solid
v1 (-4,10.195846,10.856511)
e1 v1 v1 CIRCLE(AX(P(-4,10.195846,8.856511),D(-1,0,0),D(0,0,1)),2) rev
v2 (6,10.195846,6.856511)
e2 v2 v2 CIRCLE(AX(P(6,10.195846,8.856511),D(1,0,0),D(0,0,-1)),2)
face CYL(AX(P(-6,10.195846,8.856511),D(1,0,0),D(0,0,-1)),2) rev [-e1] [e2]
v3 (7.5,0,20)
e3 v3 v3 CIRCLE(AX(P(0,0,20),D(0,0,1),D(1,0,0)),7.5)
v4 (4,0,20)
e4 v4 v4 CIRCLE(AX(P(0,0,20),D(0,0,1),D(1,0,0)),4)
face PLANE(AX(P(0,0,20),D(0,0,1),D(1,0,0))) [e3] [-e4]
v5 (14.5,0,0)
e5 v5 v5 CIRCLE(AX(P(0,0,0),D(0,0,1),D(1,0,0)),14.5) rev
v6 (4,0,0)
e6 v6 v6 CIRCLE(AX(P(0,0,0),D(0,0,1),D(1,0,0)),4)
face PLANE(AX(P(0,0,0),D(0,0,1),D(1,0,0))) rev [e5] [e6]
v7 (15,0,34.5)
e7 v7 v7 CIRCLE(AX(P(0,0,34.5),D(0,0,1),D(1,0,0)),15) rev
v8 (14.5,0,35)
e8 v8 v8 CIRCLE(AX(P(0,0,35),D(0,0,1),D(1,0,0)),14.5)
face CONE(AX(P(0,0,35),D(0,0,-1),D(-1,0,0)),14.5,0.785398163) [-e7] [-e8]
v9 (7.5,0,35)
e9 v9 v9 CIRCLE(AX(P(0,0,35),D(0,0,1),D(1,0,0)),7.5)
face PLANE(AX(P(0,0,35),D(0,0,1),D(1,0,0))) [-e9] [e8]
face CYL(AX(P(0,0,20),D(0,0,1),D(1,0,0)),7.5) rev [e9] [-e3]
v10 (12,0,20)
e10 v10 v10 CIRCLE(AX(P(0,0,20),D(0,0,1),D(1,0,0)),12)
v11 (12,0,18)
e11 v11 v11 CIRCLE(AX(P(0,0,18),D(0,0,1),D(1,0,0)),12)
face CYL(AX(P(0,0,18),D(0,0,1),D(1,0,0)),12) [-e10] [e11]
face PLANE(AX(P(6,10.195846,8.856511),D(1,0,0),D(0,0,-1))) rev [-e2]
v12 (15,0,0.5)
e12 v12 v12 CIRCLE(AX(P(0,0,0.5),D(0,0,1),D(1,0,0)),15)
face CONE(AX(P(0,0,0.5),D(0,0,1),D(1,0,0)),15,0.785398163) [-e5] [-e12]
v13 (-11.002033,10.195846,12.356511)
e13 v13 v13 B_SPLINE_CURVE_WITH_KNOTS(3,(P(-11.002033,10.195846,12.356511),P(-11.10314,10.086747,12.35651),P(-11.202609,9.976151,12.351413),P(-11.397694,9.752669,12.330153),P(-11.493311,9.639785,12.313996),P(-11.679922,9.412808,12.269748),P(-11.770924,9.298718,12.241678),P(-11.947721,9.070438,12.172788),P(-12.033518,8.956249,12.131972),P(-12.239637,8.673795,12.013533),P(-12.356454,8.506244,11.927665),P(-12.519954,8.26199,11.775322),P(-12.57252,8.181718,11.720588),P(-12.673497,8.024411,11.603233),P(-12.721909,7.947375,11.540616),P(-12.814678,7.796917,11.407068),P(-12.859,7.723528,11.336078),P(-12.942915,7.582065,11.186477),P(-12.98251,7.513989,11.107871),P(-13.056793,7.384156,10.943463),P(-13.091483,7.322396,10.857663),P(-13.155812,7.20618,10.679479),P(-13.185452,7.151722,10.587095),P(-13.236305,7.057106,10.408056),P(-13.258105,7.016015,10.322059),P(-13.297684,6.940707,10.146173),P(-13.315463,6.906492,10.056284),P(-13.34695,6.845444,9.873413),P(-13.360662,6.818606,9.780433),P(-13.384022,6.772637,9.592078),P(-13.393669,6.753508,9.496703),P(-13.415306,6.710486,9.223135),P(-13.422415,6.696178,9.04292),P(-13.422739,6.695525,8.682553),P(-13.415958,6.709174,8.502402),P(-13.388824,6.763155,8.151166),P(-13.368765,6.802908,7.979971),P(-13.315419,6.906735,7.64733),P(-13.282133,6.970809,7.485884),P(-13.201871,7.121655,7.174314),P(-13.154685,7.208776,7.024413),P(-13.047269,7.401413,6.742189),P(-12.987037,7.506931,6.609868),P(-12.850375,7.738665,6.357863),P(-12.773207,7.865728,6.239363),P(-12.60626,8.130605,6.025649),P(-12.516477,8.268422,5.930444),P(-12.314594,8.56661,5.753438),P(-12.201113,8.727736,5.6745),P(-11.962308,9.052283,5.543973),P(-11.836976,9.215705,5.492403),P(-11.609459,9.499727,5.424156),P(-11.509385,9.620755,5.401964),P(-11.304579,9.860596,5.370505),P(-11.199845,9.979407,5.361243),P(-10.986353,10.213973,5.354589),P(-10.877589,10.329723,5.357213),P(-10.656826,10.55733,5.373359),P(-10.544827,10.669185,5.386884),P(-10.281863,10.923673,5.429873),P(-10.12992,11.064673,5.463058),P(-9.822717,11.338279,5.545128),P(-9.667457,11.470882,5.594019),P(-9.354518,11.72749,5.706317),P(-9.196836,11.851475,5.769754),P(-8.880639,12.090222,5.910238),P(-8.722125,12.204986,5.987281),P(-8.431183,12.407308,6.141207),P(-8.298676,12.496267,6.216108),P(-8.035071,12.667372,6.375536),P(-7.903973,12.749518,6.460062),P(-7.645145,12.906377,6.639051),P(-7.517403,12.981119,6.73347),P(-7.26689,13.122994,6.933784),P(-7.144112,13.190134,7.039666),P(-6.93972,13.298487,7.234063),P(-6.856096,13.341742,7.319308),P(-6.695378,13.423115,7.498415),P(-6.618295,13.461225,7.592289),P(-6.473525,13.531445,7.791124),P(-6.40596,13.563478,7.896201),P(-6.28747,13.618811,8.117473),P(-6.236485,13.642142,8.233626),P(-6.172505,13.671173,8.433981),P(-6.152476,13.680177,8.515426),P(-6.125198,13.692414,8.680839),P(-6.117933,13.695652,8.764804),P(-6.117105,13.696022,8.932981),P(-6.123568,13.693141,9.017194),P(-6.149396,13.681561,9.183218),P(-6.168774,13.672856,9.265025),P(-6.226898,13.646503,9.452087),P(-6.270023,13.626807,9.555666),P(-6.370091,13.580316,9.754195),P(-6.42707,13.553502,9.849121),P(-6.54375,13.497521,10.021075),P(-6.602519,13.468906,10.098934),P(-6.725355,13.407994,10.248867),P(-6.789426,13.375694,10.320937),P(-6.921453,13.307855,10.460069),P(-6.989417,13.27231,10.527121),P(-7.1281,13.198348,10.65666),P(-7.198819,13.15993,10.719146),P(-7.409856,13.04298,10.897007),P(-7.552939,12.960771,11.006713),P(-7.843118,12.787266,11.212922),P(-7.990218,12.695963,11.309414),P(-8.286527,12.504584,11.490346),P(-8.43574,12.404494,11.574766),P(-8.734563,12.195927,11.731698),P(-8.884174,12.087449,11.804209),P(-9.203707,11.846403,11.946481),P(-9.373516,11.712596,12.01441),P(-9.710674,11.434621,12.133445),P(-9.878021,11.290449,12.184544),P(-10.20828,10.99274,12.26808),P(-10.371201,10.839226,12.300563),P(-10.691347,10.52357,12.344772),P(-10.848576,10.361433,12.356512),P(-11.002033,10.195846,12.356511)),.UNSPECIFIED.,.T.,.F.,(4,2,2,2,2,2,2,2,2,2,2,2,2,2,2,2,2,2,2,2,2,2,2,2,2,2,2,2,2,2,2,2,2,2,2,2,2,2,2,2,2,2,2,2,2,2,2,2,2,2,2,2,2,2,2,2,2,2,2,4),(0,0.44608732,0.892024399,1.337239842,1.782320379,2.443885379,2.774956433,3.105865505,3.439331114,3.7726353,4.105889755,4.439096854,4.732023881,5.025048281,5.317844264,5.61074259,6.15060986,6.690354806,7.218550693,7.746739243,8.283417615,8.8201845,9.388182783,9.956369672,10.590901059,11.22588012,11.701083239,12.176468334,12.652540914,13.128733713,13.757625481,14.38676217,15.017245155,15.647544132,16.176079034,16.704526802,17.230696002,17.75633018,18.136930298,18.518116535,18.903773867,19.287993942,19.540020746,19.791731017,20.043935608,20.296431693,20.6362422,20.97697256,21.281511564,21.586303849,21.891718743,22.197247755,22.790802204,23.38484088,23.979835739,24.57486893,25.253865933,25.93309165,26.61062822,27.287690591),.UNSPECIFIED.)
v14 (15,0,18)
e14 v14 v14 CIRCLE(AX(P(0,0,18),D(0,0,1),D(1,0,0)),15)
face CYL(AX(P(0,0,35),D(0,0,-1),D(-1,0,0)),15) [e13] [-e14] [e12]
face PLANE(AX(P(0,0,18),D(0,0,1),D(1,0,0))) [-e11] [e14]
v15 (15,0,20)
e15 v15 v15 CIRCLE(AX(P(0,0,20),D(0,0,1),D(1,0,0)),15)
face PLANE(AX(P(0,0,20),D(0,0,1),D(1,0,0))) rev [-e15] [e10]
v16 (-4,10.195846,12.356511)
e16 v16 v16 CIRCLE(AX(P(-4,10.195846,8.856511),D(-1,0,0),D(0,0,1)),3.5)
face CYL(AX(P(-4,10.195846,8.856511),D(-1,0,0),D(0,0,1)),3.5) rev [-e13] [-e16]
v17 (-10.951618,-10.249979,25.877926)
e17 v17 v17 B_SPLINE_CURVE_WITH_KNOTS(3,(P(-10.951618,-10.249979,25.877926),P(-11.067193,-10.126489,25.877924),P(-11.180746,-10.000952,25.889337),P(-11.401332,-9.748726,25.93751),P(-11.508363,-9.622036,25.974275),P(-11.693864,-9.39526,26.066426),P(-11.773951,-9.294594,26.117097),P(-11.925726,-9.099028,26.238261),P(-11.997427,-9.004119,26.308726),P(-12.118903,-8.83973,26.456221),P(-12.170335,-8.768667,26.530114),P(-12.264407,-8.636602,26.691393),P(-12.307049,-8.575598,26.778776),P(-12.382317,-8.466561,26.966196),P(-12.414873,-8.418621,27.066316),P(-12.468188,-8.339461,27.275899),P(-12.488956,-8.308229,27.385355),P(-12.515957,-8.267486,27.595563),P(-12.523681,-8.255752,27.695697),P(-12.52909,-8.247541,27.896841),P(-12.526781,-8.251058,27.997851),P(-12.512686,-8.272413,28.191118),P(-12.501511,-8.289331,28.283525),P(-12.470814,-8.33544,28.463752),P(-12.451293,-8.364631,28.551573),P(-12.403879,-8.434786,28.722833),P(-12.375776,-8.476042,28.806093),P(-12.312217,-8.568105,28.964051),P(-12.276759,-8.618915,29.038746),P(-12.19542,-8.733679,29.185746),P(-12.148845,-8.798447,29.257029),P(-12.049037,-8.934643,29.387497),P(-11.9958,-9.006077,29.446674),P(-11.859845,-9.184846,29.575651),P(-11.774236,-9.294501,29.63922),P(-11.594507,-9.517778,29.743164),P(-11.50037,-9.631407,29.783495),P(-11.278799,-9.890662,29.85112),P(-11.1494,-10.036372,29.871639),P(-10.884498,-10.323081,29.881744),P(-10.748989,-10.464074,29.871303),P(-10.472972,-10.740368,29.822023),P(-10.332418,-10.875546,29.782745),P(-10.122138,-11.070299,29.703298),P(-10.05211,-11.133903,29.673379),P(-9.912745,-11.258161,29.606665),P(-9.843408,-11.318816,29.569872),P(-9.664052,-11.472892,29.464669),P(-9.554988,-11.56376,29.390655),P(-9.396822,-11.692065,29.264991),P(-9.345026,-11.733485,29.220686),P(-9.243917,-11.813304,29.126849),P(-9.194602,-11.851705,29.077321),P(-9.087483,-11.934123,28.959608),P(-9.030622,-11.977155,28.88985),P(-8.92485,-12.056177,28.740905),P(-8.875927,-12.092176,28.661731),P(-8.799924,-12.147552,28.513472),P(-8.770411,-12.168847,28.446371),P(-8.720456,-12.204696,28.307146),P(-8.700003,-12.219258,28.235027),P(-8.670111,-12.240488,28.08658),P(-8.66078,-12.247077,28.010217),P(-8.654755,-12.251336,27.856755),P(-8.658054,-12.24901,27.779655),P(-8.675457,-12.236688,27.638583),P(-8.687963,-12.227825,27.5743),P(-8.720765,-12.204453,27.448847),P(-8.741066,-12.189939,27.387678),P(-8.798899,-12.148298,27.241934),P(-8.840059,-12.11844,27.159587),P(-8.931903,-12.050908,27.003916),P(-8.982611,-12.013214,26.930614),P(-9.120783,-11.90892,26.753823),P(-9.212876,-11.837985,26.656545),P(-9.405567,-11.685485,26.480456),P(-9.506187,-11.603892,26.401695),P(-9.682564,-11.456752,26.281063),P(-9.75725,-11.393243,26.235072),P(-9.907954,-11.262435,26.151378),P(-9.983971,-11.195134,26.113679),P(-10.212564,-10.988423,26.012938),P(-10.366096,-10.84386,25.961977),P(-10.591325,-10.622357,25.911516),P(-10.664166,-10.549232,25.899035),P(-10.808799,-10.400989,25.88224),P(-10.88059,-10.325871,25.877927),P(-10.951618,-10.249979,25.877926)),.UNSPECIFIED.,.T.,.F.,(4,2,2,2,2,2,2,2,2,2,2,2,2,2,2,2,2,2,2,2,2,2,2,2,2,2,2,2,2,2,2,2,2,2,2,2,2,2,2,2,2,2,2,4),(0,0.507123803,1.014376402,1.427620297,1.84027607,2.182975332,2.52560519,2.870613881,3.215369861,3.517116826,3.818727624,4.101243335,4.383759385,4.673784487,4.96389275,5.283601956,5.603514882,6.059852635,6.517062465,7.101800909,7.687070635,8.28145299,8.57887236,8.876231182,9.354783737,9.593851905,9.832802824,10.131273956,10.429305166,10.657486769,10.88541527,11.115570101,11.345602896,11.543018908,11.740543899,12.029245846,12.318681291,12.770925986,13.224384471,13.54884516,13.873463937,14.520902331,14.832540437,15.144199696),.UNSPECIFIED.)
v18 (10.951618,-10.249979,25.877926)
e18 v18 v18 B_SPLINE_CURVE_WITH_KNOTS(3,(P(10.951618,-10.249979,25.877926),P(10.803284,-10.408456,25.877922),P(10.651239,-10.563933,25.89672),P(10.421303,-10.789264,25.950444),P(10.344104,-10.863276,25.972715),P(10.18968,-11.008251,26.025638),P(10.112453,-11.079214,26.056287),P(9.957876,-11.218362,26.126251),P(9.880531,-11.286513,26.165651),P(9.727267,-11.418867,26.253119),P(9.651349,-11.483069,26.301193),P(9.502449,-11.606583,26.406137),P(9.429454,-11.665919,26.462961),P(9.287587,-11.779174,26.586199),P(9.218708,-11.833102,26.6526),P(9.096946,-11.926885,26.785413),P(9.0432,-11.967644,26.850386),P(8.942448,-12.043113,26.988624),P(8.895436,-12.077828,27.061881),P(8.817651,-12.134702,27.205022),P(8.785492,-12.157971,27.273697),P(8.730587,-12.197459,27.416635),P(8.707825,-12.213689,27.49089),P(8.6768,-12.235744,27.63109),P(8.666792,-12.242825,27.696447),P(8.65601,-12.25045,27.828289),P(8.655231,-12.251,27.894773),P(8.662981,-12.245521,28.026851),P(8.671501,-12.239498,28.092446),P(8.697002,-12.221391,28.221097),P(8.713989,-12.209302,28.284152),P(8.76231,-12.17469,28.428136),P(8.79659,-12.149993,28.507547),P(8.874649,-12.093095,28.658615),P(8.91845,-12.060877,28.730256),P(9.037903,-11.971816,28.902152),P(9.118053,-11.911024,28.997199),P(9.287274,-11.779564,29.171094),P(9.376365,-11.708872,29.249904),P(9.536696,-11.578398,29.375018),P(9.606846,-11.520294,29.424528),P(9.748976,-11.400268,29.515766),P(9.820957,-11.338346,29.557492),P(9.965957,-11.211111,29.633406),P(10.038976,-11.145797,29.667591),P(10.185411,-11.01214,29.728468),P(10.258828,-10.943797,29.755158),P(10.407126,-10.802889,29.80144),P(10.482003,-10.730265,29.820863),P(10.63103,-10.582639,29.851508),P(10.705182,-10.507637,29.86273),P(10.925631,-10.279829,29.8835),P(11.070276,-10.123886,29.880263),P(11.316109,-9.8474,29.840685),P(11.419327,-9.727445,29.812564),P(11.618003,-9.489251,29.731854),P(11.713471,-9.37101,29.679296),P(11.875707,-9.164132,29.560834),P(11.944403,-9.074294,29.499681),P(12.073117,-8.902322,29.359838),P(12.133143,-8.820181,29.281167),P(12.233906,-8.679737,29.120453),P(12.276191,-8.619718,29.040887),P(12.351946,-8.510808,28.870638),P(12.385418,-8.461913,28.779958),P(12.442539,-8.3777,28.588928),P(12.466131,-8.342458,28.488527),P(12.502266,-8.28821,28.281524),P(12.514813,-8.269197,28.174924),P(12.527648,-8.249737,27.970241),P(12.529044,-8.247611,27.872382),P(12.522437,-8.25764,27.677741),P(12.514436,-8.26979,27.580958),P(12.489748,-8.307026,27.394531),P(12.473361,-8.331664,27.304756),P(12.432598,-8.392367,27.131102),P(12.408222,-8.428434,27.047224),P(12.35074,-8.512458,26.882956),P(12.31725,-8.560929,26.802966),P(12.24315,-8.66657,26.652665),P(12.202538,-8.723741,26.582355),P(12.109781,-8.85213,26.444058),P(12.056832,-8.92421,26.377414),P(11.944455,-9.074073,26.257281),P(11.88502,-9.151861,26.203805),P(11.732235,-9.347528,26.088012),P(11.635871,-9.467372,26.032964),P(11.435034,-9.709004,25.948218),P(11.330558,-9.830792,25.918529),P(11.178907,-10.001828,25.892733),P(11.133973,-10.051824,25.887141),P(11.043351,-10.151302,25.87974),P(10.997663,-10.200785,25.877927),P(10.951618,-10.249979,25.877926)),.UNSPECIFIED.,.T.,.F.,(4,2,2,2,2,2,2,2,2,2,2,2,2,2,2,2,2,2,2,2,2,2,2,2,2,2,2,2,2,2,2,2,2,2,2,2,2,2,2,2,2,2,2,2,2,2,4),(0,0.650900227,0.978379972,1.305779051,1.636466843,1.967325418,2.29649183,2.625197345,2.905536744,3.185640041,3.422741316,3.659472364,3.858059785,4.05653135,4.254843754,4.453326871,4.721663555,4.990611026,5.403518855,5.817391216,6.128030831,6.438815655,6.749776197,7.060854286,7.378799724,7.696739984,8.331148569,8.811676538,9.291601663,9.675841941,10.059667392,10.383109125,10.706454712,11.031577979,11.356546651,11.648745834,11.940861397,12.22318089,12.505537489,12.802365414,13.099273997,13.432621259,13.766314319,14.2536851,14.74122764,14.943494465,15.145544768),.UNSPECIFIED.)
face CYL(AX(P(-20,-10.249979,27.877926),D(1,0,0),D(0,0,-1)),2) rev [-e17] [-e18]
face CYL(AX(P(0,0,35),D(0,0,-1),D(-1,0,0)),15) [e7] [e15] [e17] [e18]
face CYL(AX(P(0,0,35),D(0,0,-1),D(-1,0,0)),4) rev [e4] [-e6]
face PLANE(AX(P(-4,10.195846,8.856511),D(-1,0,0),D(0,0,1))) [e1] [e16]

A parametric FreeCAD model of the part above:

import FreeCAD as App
import Part
import Sketcher

V = App.Vector
Q = App.Units.Quantity


def edges_at(feature, points):
    """Names of the edges that pass closest to the given points."""
    edges = feature.Shape.Edges
    near = lambda p: min(range(len(edges)), key=lambda i: edges[i].distToShape(Part.Vertex(*p))[0])
    return sorted({f"Edge{near(p) + 1}" for p in points})

doc = App.newDocument("Part")
body = doc.addObject("PartDesign::Body", "Body")

# Sketch on XY plane
sketch1 = body.newObject("Sketcher::SketchObject", "Sketch")
sketch1.AttachmentSupport = (doc.getObject("XY_Plane"), [""])
sketch1.MapMode = "FlatFace"
sketch1.addGeometry([
    Part.Circle(V(0, 0, 0), V(0, 0, 1), 15),
    Part.Circle(V(0, 0, 0), V(0, 0, 1), 4),
], False)
sketch1.addConstraint([
    Sketcher.Constraint("Coincident", 0, 3, -1, 1),
    Sketcher.Constraint("Coincident", 1, 3, -1, 1),
    Sketcher.Constraint("Diameter", 0, Q("30 mm")),
    Sketcher.Constraint("Diameter", 1, Q("8 mm")),
])
pad1 = body.newObject("PartDesign::Pad", "Pad")
pad1.Profile = sketch1
pad1.Length = 35

# Sketch on XY plane
sketch2 = body.newObject("Sketcher::SketchObject", "Sketch001")
sketch2.AttachmentSupport = (doc.getObject("XY_Plane"), [""])
sketch2.MapMode = "FlatFace"
sketch2.AttachmentOffset = App.Placement(V(0, 0, 35), App.Rotation())
sketch2.addGeometry(Part.Circle(V(0, 0, 0), V(0, 0, 1), 8), False)
sketch2.addConstraint([
    Sketcher.Constraint("Coincident", 0, 3, -1, 1),
    Sketcher.Constraint("Diameter", 0, Q("15 mm")),
])
pocket1 = body.newObject("PartDesign::Pocket", "Pocket")
pocket1.Profile = sketch2
pocket1.Length = 15

# Sketch on YZ plane
sketch3 = body.newObject("Sketcher::SketchObject", "Sketch002")
sketch3.AttachmentSupport = (doc.getObject("YZ_Plane"), [""])
sketch3.MapMode = "FlatFace"
sketch3.addGeometry(Part.Circle(V(10.2, 8.9, 0), V(0, 0, 1), 2), False)
sketch3.addConstraint([
    Sketcher.Constraint("Diameter", 0, Q("4 mm")),
    Sketcher.Constraint("DistanceY", -1, 1, 0, 3, Q("8.856511 mm")),
    Sketcher.Constraint("DistanceX", -1, 1, 0, 3, Q("10.195846 mm")),
])
pocket2 = body.newObject("PartDesign::Pocket", "Pocket001")
pocket2.Profile = sketch3
pocket2.Length = 12
pocket2.Midplane = True

# Sketch on YZ plane
sketch4 = body.newObject("Sketcher::SketchObject", "Sketch003")
sketch4.AttachmentSupport = (doc.getObject("YZ_Plane"), [""])
sketch4.MapMode = "FlatFace"
sketch4.AttachmentOffset = App.Placement(V(0, 0, -14), App.Rotation())
sketch4.addGeometry(Part.Circle(V(10.2, 8.9, 0), V(0, 0, 1), 3.5), False)
sketch4.addConstraint([
    Sketcher.Constraint("Diameter", 0, Q("7 mm")),
    Sketcher.Constraint("DistanceY", -1, 1, 0, 3, Q("8.856511 mm")),
    Sketcher.Constraint("DistanceX", -1, 1, 0, 3, Q("10.195846 mm")),
])
pocket3 = body.newObject("PartDesign::Pocket", "Pocket002")
pocket3.Profile = sketch4
pocket3.Length = 10
pocket3.Reversed = True

# Sketch on XY plane
sketch5 = body.newObject("Sketcher::SketchObject", "Sketch004")
sketch5.AttachmentSupport = (doc.getObject("XY_Plane"), [""])
sketch5.MapMode = "FlatFace"
sketch5.AttachmentOffset = App.Placement(V(0, 0, 18), App.Rotation())
sketch5.addGeometry([
    Part.Circle(V(0, 0, 0), V(0, 0, 1), 15),
    Part.Circle(V(0, 0, 0), V(0, 0, 1), 12),
], False)
sketch5.addConstraint([
    Sketcher.Constraint("Coincident", 0, 3, -1, 1),
    Sketcher.Constraint("Coincident", 1, 3, -1, 1),
    Sketcher.Constraint("Diameter", 0, Q("30 mm")),
    Sketcher.Constraint("Diameter", 1, Q("24 mm")),
])
pocket4 = body.newObject("PartDesign::Pocket", "Pocket003")
pocket4.Profile = sketch5
pocket4.Length = 2
pocket4.Reversed = True

# Sketch on YZ plane
sketch6 = body.newObject("Sketcher::SketchObject", "Sketch005")
sketch6.AttachmentSupport = (doc.getObject("YZ_Plane"), [""])
sketch6.MapMode = "FlatFace"
sketch6.addGeometry(Part.Circle(V(-10.2, 27.9, 0), V(0, 0, 1), 2), False)
sketch6.addConstraint([
    Sketcher.Constraint("Diameter", 0, Q("4 mm")),
    Sketcher.Constraint("DistanceX", 0, 3, -1, 1, Q("10.249979 mm")),
    Sketcher.Constraint("DistanceY", -1, 1, 0, 3, Q("27.877926 mm")),
])
pocket5 = body.newObject("PartDesign::Pocket", "Pocket004")
pocket5.Profile = sketch6
pocket5.Length = 40
pocket5.Midplane = True
doc.recompute()

chamfer = body.newObject("PartDesign::Chamfer", "Chamfer")
chamfer.Base = (pocket5, edges_at(pocket5, [(-15, 0, 0), (-15, 0, 35)]))
chamfer.Size = 0.5

doc.recompute()
